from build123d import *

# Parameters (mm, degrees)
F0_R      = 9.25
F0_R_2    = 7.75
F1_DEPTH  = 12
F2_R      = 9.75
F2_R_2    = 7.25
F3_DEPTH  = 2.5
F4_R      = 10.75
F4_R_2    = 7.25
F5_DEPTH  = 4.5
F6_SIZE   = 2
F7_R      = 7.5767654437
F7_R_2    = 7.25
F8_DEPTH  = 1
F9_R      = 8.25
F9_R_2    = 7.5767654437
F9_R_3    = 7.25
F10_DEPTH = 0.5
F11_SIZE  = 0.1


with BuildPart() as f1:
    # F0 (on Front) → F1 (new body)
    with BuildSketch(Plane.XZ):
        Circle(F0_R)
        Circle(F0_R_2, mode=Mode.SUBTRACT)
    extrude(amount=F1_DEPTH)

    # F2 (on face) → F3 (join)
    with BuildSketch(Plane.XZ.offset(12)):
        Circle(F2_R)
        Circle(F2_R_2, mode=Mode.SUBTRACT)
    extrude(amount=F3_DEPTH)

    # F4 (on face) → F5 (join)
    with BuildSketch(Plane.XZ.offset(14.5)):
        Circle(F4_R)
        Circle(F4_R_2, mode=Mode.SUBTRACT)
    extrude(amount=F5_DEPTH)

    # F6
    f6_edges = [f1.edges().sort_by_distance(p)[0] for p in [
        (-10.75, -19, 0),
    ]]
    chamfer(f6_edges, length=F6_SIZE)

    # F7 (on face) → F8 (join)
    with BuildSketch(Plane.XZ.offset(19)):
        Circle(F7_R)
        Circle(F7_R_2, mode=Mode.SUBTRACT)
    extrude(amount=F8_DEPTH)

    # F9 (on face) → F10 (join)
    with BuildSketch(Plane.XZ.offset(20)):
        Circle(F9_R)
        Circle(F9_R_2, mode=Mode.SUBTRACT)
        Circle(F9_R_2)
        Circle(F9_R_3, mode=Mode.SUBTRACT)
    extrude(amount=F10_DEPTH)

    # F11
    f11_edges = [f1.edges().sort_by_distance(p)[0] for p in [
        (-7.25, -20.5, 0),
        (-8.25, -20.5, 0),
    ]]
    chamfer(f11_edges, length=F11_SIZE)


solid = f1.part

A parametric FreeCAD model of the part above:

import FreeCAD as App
import Part
import Sketcher
from FreeCAD import Vector
Q = App.Units.Quantity


def edges_at(feature, points):
    """Names of the edges that pass closest to the given points."""
    edges = feature.Shape.Edges
    near = lambda p: min(range(len(edges)), key=lambda i: edges[i].distToShape(Part.Vertex(*p))[0])
    return sorted({f"Edge{near(p) + 1}" for p in points})

doc = App.newDocument("Part")
body = doc.addObject("PartDesign::Body", "Body")

# Sketch on XZ plane
sketch1 = doc.addObject("Sketcher::SketchObject", "Sketch")
body.addObject(sketch1)
sketch1.AttachmentSupport = (doc.XZ_Plane, [""])
sketch1.MapMode = "FlatFace"
sketch1.addGeometry([
    Part.Circle(Vector(0, 0, 0), Vector(0, 0, 1), 9),
    Part.Circle(Vector(0, 0, 0), Vector(0, 0, 1), 8),
], False)
sketch1.addConstraint([
    Sketcher.Constraint("Coincident", 0, 3, -1, 1),
    Sketcher.Constraint("Coincident", 1, 3, -1, 1),
    Sketcher.Constraint("Diameter", 0, Q("18.5 mm")),
    Sketcher.Constraint("Diameter", 1, Q("15.5 mm")),
])
pad1 = doc.addObject("PartDesign::Pad", "Pad")
body.addObject(pad1)
pad1.Profile = sketch1
pad1.Length = 12

# Sketch on XZ plane
sketch2 = doc.addObject("Sketcher::SketchObject", "Sketch001")
body.addObject(sketch2)
sketch2.AttachmentSupport = (doc.XZ_Plane, [""])
sketch2.MapMode = "FlatFace"
sketch2.AttachmentOffset = App.Placement(Vector(0, 0, 12), App.Rotation())
sketch2.addGeometry([
    Part.Circle(Vector(0, 0, 0), Vector(0, 0, 1), 10),
    Part.Circle(Vector(0, 0, 0), Vector(0, 0, 1), 7),
], False)
sketch2.addConstraint([
    Sketcher.Constraint("Coincident", 0, 3, -1, 1),
    Sketcher.Constraint("Coincident", 1, 3, -1, 1),
    Sketcher.Constraint("Diameter", 0, Q("19.5 mm")),
    Sketcher.Constraint("Diameter", 1, Q("14.5 mm")),
])
pad2 = doc.addObject("PartDesign::Pad", "Pad001")
body.addObject(pad2)
pad2.Profile = sketch2
pad2.Length = 2.5

# Sketch on XZ plane
sketch3 = doc.addObject("Sketcher::SketchObject", "Sketch002")
body.addObject(sketch3)
sketch3.AttachmentSupport = (doc.XZ_Plane, [""])
sketch3.MapMode = "FlatFace"
sketch3.AttachmentOffset = App.Placement(Vector(0, 0, 14.5), App.Rotation())
sketch3.addGeometry([
    Part.Circle(Vector(0, 0, 0), Vector(0, 0, 1), 11),
    Part.Circle(Vector(0, 0, 0), Vector(0, 0, 1), 7),
], False)
sketch3.addConstraint([
    Sketcher.Constraint("Coincident", 0, 3, -1, 1),
    Sketcher.Constraint("Coincident", 1, 3, -1, 1),
    Sketcher.Constraint("Diameter", 0, Q("21.5 mm")),
    Sketcher.Constraint("Diameter", 1, Q("14.5 mm")),
])
pad3 = doc.addObject("PartDesign::Pad", "Pad002")
body.addObject(pad3)
pad3.Profile = sketch3
pad3.Length = 4.5
doc.recompute()

chamfer = doc.addObject("PartDesign::Chamfer", "Chamfer")
body.addObject(chamfer)
chamfer.Base = (pad3, edges_at(pad3, [(-10.75, -19, 0)]))
chamfer.Size = 2

# Sketch on XZ plane
sketch4 = doc.addObject("Sketcher::SketchObject", "Sketch003")
body.addObject(sketch4)
sketch4.AttachmentSupport = (doc.XZ_Plane, [""])
sketch4.MapMode = "FlatFace"
sketch4.AttachmentOffset = App.Placement(Vector(0, 0, 19), App.Rotation())
sketch4.addGeometry([
    Part.Circle(Vector(0, 0, 0), Vector(0, 0, 1), 8),
    Part.Circle(Vector(0, 0, 0), Vector(0, 0, 1), 7),
], False)
sketch4.addConstraint([
    Sketcher.Constraint("Coincident", 0, 3, -1, 1),
    Sketcher.Constraint("Coincident", 1, 3, -1, 1),
    Sketcher.Constraint("Diameter", 1, Q("14.5 mm")),
    Sketcher.Constraint("Diameter", 0, Q("15.153531 mm")),
])
pad4 = doc.addObject("PartDesign::Pad", "Pad003")
body.addObject(pad4)
pad4.Profile = sketch4
pad4.Length = 1

# Sketch on XZ plane
sketch5 = doc.addObject("Sketcher::SketchObject", "Sketch004")
body.addObject(sketch5)
sketch5.AttachmentSupport = (doc.XZ_Plane, [""])
sketch5.MapMode = "FlatFace"
sketch5.AttachmentOffset = App.Placement(Vector(0, 0, 20), App.Rotation())
sketch5.addGeometry([
    Part.Circle(Vector(0, 0, 0), Vector(0, 0, 1), 8),
    Part.Circle(Vector(0, 0, 0), Vector(0, 0, 1), 7),
], False)
sketch5.addConstraint([
    Sketcher.Constraint("Coincident", 0, 3, -1, 1),
    Sketcher.Constraint("Coincident", 1, 3, -1, 1),
    Sketcher.Constraint("Diameter", 0, Q("16.5 mm")),
    Sketcher.Constraint("Diameter", 1, Q("14.5 mm")),
])
pad5 = doc.addObject("PartDesign::Pad", "Pad004")
body.addObject(pad5)
pad5.Profile = sketch5
pad5.Length = 0.5
doc.recompute()

chamfer2 = doc.addObject("PartDesign::Chamfer", "Chamfer001")
body.addObject(chamfer2)
chamfer2.Base = (pad5, edges_at(pad5, [(-7.25, -20.5, 0), (-8.25, -20.5, 0)]))
chamfer2.Size = 0.1

doc.recompute()
